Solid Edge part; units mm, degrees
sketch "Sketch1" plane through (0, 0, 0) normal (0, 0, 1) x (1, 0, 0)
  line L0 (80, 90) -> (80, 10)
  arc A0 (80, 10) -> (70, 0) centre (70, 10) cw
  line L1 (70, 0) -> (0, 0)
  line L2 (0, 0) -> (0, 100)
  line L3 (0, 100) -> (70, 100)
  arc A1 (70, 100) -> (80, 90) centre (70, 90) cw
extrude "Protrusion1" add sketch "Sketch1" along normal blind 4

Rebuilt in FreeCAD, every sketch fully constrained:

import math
import FreeCAD as App
import Part
import Sketcher
from FreeCAD import Vector
Q = App.Units.Quantity

doc = App.newDocument("Part")
body = doc.addObject("PartDesign::Body", "Body")

sketch1 = body.newObject("Sketcher::SketchObject", "Sketch")
sketch1.AttachmentSupport = (doc.getObject("XY_Plane"), [""])
sketch1.MapMode = "FlatFace"
sketch1.addGeometry([
    Part.LineSegment(Vector(80, 10, 0), Vector(80, 90, 0)),
    Part.ArcOfCircle(Part.Circle(Vector(70, 90, 0), Vector(0, 0, 1), 10), math.radians(0), math.radians(90)),
    Part.LineSegment(Vector(70, 100, 0), Vector(0, 100, 0)),
    Part.LineSegment(Vector(0, 100, 0), Vector(0, 0, 0)),
    Part.LineSegment(Vector(0, 0, 0), Vector(70, 0, 0)),
    Part.ArcOfCircle(Part.Circle(Vector(70, 10, 0), Vector(0, 0, 1), 10), math.radians(-90), math.radians(0)),
], False)
sketch1.addConstraint([
    Sketcher.Constraint("Tangent", 0, 2, 1, 1),
    Sketcher.Constraint("Tangent", 1, 2, 2, 1),
    Sketcher.Constraint("Coincident", 2, 2, 3, 1),
    Sketcher.Constraint("Coincident", 3, 2, 4, 1),
    Sketcher.Constraint("Tangent", 4, 2, 5, 1),
    Sketcher.Constraint("Tangent", 5, 2, 0, 1),
    Sketcher.Constraint("Vertical", 0),
    Sketcher.Constraint("Horizontal", 2),
    Sketcher.Constraint("Vertical", 3),
    Sketcher.Constraint("Horizontal", 4),
    Sketcher.Constraint("Coincident", 3, 2, -1, 1),
    Sketcher.Constraint("Equal", 1, 5),
    Sketcher.Constraint("Radius", 1, Q("10 mm")),
    Sketcher.Constraint("DistanceX", 2, 2, 2, 1, Q("70 mm")),
    Sketcher.Constraint("DistanceY", 0, 1, 0, 2, Q("80 mm")),
])
pad1 = body.newObject("PartDesign::Pad", "Pad")
pad1.Profile = sketch1
pad1.Length = 4

doc.recompute()
